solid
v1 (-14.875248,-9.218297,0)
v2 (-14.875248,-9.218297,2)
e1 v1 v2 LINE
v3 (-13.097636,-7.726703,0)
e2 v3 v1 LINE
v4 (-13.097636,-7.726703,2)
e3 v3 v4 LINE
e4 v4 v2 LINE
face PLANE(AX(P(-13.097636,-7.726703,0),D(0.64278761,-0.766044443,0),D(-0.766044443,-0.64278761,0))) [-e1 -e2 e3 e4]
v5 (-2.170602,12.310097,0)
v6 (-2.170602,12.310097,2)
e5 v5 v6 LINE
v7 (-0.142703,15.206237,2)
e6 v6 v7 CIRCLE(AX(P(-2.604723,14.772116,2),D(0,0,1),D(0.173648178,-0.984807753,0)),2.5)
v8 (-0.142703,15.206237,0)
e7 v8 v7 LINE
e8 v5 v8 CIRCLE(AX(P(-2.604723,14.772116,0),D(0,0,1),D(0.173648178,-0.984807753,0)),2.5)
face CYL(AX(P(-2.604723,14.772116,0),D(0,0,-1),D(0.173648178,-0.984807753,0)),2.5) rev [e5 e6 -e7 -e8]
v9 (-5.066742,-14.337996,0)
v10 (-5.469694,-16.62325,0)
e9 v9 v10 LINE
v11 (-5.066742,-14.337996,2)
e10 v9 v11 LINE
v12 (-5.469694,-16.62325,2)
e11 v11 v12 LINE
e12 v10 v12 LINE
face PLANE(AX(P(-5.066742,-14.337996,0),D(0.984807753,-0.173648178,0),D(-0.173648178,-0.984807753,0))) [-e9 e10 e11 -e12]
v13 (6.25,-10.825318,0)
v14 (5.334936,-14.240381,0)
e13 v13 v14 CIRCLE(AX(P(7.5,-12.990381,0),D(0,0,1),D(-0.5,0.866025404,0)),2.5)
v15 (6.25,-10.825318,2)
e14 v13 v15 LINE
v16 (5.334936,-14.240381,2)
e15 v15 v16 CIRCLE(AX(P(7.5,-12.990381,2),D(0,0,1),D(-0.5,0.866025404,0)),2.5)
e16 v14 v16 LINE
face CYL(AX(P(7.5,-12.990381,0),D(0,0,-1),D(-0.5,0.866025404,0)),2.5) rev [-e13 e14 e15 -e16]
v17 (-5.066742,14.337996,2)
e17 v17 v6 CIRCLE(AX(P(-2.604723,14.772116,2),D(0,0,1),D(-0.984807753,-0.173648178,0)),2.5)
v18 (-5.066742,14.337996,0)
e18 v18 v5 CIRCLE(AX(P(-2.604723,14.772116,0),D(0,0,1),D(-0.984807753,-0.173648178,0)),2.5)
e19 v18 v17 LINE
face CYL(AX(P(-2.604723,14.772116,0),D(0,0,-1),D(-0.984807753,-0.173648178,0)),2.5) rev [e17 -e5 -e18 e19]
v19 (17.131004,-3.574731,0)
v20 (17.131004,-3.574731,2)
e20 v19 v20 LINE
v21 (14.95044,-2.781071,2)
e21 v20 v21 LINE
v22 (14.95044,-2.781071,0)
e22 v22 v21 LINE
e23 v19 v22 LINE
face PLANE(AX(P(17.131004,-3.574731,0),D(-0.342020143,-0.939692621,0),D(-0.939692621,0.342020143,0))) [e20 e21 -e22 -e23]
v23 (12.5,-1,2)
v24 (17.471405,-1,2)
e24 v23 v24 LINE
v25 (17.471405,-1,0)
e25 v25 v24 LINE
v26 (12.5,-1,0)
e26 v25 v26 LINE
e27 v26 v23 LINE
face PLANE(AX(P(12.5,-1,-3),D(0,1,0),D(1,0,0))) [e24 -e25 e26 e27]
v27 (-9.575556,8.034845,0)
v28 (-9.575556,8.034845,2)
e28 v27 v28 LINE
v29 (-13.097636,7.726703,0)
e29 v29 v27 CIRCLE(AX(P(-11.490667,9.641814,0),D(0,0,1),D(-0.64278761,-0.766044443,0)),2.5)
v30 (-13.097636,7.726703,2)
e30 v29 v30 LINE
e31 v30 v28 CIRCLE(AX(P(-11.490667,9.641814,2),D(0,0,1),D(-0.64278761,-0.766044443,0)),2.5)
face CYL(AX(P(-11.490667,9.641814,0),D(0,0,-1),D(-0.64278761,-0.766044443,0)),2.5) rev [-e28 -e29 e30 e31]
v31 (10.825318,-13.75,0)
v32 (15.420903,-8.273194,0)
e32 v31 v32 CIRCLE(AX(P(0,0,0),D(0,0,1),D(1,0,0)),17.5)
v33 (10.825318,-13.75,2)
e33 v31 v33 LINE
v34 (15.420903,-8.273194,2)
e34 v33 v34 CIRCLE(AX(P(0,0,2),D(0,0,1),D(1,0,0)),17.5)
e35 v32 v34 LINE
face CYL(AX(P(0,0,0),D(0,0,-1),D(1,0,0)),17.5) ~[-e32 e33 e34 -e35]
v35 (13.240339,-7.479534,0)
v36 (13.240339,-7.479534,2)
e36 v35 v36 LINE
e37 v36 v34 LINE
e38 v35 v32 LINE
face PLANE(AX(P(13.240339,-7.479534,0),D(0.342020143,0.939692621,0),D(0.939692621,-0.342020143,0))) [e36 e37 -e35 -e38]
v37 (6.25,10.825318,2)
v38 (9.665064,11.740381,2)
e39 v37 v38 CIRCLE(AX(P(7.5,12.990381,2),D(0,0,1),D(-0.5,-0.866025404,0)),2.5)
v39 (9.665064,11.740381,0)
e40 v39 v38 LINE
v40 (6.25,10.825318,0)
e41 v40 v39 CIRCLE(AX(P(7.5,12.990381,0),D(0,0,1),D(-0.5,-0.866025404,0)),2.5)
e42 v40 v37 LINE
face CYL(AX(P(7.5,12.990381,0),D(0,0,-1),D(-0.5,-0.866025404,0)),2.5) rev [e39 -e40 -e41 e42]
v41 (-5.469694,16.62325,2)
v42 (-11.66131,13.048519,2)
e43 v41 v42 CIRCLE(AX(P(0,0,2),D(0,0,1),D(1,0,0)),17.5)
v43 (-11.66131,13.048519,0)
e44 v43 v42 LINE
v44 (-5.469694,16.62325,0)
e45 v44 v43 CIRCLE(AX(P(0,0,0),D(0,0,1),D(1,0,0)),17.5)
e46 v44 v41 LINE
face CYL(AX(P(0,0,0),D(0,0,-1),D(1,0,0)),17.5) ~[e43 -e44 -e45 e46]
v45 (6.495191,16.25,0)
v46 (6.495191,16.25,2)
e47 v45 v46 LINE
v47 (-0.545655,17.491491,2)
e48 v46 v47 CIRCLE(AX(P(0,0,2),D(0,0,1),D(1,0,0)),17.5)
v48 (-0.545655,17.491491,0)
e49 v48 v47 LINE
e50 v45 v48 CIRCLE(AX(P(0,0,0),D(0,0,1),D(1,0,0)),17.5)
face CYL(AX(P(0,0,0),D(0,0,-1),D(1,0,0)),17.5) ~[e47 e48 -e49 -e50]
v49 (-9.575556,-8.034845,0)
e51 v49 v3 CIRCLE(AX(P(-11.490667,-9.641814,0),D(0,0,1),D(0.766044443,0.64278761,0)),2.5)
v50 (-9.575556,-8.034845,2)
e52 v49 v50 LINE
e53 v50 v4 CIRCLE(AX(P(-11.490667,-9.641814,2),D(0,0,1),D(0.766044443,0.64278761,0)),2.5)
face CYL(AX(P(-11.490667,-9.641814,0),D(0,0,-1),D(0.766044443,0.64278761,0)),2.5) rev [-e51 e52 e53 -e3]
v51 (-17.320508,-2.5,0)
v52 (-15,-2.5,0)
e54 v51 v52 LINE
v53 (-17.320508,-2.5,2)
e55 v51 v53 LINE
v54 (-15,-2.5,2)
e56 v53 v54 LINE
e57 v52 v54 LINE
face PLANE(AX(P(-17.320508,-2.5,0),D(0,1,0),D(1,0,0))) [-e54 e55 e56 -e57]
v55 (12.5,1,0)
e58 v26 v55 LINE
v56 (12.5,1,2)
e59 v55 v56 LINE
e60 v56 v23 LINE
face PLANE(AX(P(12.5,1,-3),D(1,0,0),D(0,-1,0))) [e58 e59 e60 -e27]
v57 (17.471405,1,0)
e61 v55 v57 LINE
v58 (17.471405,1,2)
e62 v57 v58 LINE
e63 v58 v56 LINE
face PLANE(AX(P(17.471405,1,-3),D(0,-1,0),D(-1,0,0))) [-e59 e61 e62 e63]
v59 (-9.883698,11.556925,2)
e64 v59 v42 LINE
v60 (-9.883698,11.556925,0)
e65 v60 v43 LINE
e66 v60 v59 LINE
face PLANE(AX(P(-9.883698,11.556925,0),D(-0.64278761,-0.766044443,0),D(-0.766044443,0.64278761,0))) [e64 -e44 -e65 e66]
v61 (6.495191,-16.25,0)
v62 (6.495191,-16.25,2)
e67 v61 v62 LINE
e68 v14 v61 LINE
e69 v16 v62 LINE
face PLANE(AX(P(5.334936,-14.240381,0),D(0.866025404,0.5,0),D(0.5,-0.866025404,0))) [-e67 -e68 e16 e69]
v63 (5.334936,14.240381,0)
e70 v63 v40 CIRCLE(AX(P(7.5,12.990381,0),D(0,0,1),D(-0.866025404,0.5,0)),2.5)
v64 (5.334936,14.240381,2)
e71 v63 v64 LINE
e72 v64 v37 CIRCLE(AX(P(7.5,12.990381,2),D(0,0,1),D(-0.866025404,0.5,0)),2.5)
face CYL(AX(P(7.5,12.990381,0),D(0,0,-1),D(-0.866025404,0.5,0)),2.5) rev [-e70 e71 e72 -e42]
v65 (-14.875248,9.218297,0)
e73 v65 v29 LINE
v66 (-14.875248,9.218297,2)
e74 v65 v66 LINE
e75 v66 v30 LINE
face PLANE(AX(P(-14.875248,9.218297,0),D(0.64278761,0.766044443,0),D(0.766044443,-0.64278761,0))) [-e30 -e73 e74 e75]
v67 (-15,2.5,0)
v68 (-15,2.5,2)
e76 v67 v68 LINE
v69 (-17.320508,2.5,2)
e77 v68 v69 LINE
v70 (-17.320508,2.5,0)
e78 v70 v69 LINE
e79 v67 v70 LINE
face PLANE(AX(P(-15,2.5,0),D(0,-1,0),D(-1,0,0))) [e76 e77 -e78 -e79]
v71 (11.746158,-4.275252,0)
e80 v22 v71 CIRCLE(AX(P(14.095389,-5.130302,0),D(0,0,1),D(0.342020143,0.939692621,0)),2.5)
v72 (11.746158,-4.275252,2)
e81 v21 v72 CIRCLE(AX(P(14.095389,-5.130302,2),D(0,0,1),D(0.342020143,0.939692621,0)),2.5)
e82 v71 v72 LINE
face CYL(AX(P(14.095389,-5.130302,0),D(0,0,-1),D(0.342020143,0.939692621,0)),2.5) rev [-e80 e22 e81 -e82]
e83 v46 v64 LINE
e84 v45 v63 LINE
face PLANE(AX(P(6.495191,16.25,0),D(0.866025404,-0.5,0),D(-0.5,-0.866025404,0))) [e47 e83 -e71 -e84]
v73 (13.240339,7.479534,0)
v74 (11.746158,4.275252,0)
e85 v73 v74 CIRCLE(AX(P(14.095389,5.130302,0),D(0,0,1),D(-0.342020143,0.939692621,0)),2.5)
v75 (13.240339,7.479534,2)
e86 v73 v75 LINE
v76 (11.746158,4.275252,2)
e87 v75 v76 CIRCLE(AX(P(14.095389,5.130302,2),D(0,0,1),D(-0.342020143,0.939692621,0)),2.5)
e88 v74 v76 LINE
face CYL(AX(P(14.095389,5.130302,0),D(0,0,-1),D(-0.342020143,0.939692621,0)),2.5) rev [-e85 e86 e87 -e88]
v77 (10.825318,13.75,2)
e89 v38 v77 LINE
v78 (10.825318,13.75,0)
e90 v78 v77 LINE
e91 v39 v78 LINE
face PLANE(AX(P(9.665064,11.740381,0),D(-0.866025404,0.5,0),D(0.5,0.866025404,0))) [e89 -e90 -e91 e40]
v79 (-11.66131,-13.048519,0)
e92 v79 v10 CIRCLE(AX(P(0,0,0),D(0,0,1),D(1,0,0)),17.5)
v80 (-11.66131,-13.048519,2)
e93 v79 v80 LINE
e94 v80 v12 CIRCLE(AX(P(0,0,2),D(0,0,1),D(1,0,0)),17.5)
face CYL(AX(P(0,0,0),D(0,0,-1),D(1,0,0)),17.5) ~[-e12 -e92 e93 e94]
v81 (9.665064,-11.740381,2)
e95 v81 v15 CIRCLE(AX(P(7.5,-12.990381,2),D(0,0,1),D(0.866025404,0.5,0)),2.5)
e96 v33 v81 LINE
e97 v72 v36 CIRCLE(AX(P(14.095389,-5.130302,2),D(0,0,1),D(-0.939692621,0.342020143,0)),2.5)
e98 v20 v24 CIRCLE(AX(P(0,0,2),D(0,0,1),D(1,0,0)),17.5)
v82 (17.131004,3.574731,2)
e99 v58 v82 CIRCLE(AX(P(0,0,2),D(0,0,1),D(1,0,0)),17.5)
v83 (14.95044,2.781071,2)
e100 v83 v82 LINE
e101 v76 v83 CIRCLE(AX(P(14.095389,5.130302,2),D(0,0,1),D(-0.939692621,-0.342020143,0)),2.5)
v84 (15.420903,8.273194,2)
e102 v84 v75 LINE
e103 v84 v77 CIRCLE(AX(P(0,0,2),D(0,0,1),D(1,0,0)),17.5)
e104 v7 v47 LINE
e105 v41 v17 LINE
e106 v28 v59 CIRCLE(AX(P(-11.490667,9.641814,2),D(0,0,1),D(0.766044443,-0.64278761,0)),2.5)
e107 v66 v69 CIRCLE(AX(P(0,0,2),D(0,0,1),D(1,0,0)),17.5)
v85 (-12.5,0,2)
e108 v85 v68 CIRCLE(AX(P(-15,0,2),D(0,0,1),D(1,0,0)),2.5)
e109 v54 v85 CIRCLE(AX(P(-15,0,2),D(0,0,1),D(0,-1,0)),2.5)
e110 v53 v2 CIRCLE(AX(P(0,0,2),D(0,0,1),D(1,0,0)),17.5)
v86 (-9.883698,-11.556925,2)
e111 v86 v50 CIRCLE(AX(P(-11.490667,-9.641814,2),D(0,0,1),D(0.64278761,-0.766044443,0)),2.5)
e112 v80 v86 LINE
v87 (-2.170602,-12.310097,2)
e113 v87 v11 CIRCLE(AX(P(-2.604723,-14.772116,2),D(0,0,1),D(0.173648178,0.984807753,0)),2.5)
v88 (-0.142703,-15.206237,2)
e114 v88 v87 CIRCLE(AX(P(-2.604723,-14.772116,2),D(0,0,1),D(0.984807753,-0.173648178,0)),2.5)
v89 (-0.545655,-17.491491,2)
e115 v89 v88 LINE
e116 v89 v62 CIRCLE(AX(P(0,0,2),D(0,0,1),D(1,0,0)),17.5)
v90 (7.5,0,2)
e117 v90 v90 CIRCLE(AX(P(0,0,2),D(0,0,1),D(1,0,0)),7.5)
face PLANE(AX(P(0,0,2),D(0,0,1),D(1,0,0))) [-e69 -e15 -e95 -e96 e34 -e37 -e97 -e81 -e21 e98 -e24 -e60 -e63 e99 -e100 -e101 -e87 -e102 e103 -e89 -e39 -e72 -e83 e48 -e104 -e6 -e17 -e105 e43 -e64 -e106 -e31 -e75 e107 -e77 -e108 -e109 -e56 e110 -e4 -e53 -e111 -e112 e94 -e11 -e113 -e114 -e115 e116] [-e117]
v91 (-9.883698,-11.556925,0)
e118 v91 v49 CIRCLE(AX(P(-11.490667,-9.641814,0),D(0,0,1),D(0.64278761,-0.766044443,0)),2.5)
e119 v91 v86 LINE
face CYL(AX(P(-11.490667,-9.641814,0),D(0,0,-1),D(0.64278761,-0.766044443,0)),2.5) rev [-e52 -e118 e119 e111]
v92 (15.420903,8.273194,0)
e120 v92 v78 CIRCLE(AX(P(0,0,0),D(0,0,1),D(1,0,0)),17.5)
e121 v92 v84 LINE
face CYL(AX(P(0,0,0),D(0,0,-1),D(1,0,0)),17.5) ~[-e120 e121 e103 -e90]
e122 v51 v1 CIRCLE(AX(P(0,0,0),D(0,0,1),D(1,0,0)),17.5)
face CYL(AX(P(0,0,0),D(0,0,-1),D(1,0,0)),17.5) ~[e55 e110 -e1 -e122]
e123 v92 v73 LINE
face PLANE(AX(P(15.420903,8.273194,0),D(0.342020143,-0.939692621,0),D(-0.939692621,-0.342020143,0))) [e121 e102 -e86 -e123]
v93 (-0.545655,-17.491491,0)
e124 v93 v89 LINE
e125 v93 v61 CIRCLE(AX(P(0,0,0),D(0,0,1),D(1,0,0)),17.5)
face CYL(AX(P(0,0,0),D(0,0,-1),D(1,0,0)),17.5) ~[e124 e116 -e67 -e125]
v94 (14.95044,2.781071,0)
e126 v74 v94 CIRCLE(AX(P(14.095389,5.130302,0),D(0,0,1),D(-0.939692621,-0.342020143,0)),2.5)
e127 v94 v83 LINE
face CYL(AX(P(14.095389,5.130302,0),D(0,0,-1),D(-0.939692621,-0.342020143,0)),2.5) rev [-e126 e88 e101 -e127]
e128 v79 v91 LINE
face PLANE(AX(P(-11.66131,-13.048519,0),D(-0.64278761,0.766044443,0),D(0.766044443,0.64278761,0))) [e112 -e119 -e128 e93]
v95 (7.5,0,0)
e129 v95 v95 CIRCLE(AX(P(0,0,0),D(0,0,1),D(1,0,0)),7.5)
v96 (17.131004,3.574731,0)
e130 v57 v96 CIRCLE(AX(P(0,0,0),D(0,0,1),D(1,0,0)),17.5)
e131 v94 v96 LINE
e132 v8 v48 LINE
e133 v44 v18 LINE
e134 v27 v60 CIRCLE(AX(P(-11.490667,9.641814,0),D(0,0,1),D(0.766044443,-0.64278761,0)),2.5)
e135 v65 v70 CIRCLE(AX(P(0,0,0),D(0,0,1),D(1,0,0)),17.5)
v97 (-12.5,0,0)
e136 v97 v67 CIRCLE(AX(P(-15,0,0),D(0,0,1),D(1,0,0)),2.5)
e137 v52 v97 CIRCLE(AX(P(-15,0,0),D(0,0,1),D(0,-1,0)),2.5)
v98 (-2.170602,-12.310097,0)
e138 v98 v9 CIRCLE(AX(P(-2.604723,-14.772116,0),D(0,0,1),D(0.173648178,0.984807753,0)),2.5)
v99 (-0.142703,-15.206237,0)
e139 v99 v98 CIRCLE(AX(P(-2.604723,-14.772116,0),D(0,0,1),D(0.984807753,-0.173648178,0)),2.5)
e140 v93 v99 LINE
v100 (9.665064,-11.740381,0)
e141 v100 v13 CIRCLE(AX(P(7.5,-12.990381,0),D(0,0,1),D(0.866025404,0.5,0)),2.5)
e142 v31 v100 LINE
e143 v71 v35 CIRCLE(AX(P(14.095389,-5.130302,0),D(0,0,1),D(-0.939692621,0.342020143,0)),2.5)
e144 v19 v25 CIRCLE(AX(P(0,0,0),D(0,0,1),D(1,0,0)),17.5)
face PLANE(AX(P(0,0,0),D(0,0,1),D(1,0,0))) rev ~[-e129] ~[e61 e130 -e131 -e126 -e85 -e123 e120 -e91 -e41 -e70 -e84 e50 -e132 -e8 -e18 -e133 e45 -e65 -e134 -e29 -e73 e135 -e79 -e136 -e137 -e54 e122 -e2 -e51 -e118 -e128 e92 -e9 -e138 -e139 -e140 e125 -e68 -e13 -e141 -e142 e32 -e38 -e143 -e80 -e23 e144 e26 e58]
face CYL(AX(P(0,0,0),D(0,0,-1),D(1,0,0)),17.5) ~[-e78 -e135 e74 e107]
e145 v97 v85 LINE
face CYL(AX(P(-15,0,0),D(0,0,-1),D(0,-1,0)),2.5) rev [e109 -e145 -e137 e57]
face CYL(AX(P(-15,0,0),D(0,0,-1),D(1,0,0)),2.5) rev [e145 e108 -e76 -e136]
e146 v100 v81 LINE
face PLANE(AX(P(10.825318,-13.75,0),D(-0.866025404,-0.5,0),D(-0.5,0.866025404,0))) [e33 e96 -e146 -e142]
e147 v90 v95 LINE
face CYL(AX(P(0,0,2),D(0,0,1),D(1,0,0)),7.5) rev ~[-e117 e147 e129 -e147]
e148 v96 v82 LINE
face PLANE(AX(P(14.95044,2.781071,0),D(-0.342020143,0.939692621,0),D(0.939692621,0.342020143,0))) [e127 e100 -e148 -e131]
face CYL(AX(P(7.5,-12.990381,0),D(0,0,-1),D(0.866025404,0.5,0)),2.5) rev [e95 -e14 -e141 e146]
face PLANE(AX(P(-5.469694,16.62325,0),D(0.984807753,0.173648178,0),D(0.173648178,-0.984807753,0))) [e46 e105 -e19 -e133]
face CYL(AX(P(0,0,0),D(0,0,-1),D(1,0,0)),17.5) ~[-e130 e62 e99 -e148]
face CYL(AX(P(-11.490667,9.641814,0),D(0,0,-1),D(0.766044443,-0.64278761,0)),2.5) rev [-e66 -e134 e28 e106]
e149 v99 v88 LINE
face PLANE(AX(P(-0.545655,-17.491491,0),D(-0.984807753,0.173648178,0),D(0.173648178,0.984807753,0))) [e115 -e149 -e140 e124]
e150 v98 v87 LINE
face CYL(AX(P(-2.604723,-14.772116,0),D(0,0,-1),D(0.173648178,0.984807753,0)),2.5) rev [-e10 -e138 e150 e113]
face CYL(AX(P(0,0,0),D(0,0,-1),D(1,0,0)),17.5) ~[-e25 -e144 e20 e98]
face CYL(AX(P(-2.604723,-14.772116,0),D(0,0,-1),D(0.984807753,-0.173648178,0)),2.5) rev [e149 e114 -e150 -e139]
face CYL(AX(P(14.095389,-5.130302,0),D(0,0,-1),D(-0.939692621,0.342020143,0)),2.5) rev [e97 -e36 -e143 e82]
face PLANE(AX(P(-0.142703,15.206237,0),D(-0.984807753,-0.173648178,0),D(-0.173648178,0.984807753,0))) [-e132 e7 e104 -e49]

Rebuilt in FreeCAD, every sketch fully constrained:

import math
import FreeCAD as App
import Part
import Sketcher
Q = App.Units.Quantity

doc = App.newDocument("Part")
body = doc.addObject("PartDesign::Body", "Body")

# Sketch on XY plane
sketch1 = doc.addObject("Sketcher::SketchObject", "Sketch")
body.addObject(sketch1)
sketch1.AttachmentSupport = (doc.XY_Plane, [""])
sketch1.MapMode = "FlatFace"
sketch1.addGeometry(Part.Circle(App.Vector(0, 0, 0), App.Vector(0, 0, 1), 17.5), False)
sketch1.addConstraint([
    Sketcher.Constraint("Coincident", 0, 3, -1, 1),
    Sketcher.Constraint("Diameter", 0, Q("35 mm")),
])
pad1 = doc.addObject("PartDesign::Pad", "Pad")
body.addObject(pad1)
pad1.Profile = sketch1
pad1.Length = 2

# Sketch on XY plane
sketch2 = doc.addObject("Sketcher::SketchObject", "Sketch001")
body.addObject(sketch2)
sketch2.AttachmentSupport = (doc.XY_Plane, [""])
sketch2.MapMode = "FlatFace"
sketch2.AttachmentOffset = App.Placement(App.Vector(0, 0, -3), App.Rotation())
sketch2.addGeometry([
    Part.LineSegment(App.Vector(12.5, -1, 0), App.Vector(17.471405, -1, 0)),  # 0
    Part.ArcOfCircle(Part.Circle(App.Vector(0, 0, 0), App.Vector(0, 0, 1), 17.5), math.radians(-3.275829), math.radians(0)),  # 1
    Part.ArcOfCircle(Part.Circle(App.Vector(0, 0, 0), App.Vector(0, 0, 1), 17.5), math.radians(0), math.radians(3.275829)),  # 2
    Part.LineSegment(App.Vector(17.471405, 1, 0), App.Vector(12.5, 1, 0)),  # 3
    Part.LineSegment(App.Vector(12.5, 1, 0), App.Vector(12.5, -1, 0)),  # 4
], False)
sketch2.addConstraint([
    Sketcher.Constraint("Coincident", 0, 2, 1, 1),
    Sketcher.Constraint("Tangent", 1, 2, 2, 1),
    Sketcher.Constraint("Coincident", 2, 2, 3, 1),
    Sketcher.Constraint("Coincident", 3, 2, 4, 1),
    Sketcher.Constraint("Coincident", 4, 2, 0, 1),
    Sketcher.Constraint("Horizontal", 0),
    Sketcher.Constraint("Horizontal", 3),
    Sketcher.Constraint("Vertical", 4),
    Sketcher.Constraint("Coincident", 1, 3, -1, 1),
    Sketcher.Constraint("Equal", 1, 2),
    Sketcher.Constraint("PointOnObject", 1, 2, -1),
    Sketcher.Constraint("Vertical", 0, 2, 2, 2),
    Sketcher.Constraint("Radius", 1, Q("17.5 mm")),
    Sketcher.Constraint("DistanceY", 4, 2, 4, 1, Q("2 mm")),
    Sketcher.Constraint("DistanceX", 3, 2, 1, 2, Q("5 mm")),
])
pocket1 = doc.addObject("PartDesign::Pocket", "Pocket")
body.addObject(pocket1)
pocket1.Profile = sketch2
pocket1.Length = 5
pocket1.Reversed = True

# Sketch on XY plane
sketch3 = doc.addObject("Sketcher::SketchObject", "Sketch002")
body.addObject(sketch3)
sketch3.AttachmentSupport = (doc.XY_Plane, [""])
sketch3.MapMode = "FlatFace"
sketch3.AttachmentOffset = App.Placement(App.Vector(0, 0, 2), App.Rotation())
sketch3.addGeometry(Part.Circle(App.Vector(0, 0, 0), App.Vector(0, 0, 1), 7.5), False)
sketch3.addConstraint([
    Sketcher.Constraint("Coincident", 0, 3, -1, 1),
    Sketcher.Constraint("Diameter", 0, Q("15 mm")),
])
pocket2 = doc.addObject("PartDesign::Pocket", "Pocket001")
body.addObject(pocket2)
pocket2.Profile = sketch3
pocket2.Length = 5

# Sketch on XY plane
sketch4 = doc.addObject("Sketcher::SketchObject", "Sketch003")
body.addObject(sketch4)
sketch4.AttachmentSupport = (doc.XY_Plane, [""])
sketch4.MapMode = "FlatFace"
sketch4.addGeometry([
    Part.LineSegment(App.Vector(-17.320508, -2.5, 0), App.Vector(-15, -2.5, 0)),  # 0
    Part.ArcOfCircle(Part.Circle(App.Vector(-15, 0, 0), App.Vector(0, 0, 1), 2.5), math.radians(-90), math.radians(0)),  # 1
    Part.ArcOfCircle(Part.Circle(App.Vector(-15, 0, 0), App.Vector(0, 0, 1), 2.5), math.radians(0), math.radians(90)),  # 2
    Part.LineSegment(App.Vector(-15, 2.5, 0), App.Vector(-17.320508, 2.5, 0)),  # 3
    Part.ArcOfCircle(Part.Circle(App.Vector(0, 0, 0), App.Vector(0, 0, 1), 17.5), math.radians(171.786789), math.radians(188.213211)),  # 4
], False)
sketch4.addConstraint([
    Sketcher.Constraint("Tangent", 0, 2, 1, 1),
    Sketcher.Constraint("Tangent", 1, 2, 2, 1),
    Sketcher.Constraint("Tangent", 2, 2, 3, 1),
    Sketcher.Constraint("Coincident", 3, 2, 4, 1),
    Sketcher.Constraint("Coincident", 4, 2, 0, 1),
    Sketcher.Constraint("Horizontal", 0),
    Sketcher.Constraint("Horizontal", 3),
    Sketcher.Constraint("Coincident", 4, 3, -1, 1),
    Sketcher.Constraint("Equal", 1, 2),
    Sketcher.Constraint("PointOnObject", 1, 3, -1),
    Sketcher.Constraint("PointOnObject", 1, 2, -1),
    Sketcher.Constraint("Radius", 1, Q("2.5 mm")),
    Sketcher.Constraint("Radius", 4, Q("17.5 mm")),
    Sketcher.Constraint("DistanceX", 1, 3, -1, 1, Q("15 mm")),
])
pocket3 = doc.addObject("PartDesign::Pocket", "Pocket002")
body.addObject(pocket3)
pocket3.Profile = sketch4
pocket3.Length = 2
pocket3.Reversed = True
doc.recompute()

polarpattern = doc.addObject("PartDesign::PolarPattern", "PolarPattern")
body.addObject(polarpattern)
polarpattern.Originals = [pocket3]
polarpattern.Axis = (doc.Z_Axis, [""])
polarpattern.Angle = 360
polarpattern.Occurrences = 9
body.Tip = polarpattern

doc.recompute()
